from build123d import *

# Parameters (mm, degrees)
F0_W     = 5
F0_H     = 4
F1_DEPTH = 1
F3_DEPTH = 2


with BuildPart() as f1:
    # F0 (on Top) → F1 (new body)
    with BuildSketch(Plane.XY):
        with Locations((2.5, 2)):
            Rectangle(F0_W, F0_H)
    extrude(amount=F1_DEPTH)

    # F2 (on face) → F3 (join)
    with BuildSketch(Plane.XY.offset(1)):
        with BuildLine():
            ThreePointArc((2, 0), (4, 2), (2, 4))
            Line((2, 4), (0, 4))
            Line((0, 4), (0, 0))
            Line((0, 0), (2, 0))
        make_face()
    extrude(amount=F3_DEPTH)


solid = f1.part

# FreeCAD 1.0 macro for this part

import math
import FreeCAD as App
import Part
import Sketcher
from FreeCAD import Vector
Q = App.Units.Quantity


def add_polygon(sketch, points):
    """Adds a closed chain of lines whose ends are joined by coincident constraints."""
    first, n = sketch.GeometryCount, len(points)
    for a, b in zip(points, points[1:] + points[:1]):
        sketch.addGeometry(Part.LineSegment(App.Vector(*a, 0), App.Vector(*b, 0)), False)
    for i in range(n):
        sketch.addConstraint(Sketcher.Constraint("Coincident", first + i, 2, first + (i + 1) % n, 1))

doc = App.newDocument("Part")
body = doc.addObject("PartDesign::Body", "Body")

sketch1 = body.newObject("Sketcher::SketchObject", "Sketch")
sketch1.AttachmentSupport = (doc.getObject("XY_Plane"), [""])
sketch1.MapMode = "FlatFace"
add_polygon(sketch1, [(0, 4), (0, 0), (5, 0), (5, 4)])
sketch1.addConstraint([
    Sketcher.Constraint("Vertical", 0),
    Sketcher.Constraint("Horizontal", 1),
    Sketcher.Constraint("Vertical", 2),
    Sketcher.Constraint("Horizontal", 3),
    Sketcher.Constraint("Coincident", 0, 2, -1, 1),
    Sketcher.Constraint("DistanceX", 1, 1, 1, 2, Q("5 mm")),
    Sketcher.Constraint("DistanceY", 0, 2, 0, 1, Q("4 mm")),
])
pad1 = body.newObject("PartDesign::Pad", "Pad")
pad1.Profile = sketch1
pad1.Length = 1

sketch2 = body.newObject("Sketcher::SketchObject", "Sketch001")
sketch2.AttachmentSupport = (doc.getObject("XY_Plane"), [""])
sketch2.MapMode = "FlatFace"
sketch2.AttachmentOffset = App.Placement(Vector(0, 0, 1), App.Rotation())
sketch2.addGeometry([
    Part.ArcOfCircle(Part.Circle(Vector(2, 2, 0), Vector(0, 0, 1), 2), math.radians(-90), math.radians(90)),
    Part.LineSegment(Vector(2, 4, 0), Vector(0, 4, 0)),
    Part.LineSegment(Vector(0, 4, 0), Vector(0, 0, 0)),
    Part.LineSegment(Vector(0, 0, 0), Vector(2, 0, 0)),
], False)
sketch2.addConstraint([
    Sketcher.Constraint("Tangent", 0, 2, 1, 1),
    Sketcher.Constraint("Coincident", 1, 2, 2, 1),
    Sketcher.Constraint("Coincident", 2, 2, 3, 1),
    Sketcher.Constraint("Tangent", 3, 2, 0, 1),
    Sketcher.Constraint("Horizontal", 1),
    Sketcher.Constraint("Vertical", 2),
    Sketcher.Constraint("Horizontal", 3),
    Sketcher.Constraint("Coincident", 2, 2, -1, 1),
    Sketcher.Constraint("Radius", 0, Q("2 mm")),
    Sketcher.Constraint("DistanceX", 1, 2, 1, 1, Q("2 mm")),
])
pad2 = body.newObject("PartDesign::Pad", "Pad001")
pad2.Profile = sketch2
pad2.Length = 2

doc.recompute()
